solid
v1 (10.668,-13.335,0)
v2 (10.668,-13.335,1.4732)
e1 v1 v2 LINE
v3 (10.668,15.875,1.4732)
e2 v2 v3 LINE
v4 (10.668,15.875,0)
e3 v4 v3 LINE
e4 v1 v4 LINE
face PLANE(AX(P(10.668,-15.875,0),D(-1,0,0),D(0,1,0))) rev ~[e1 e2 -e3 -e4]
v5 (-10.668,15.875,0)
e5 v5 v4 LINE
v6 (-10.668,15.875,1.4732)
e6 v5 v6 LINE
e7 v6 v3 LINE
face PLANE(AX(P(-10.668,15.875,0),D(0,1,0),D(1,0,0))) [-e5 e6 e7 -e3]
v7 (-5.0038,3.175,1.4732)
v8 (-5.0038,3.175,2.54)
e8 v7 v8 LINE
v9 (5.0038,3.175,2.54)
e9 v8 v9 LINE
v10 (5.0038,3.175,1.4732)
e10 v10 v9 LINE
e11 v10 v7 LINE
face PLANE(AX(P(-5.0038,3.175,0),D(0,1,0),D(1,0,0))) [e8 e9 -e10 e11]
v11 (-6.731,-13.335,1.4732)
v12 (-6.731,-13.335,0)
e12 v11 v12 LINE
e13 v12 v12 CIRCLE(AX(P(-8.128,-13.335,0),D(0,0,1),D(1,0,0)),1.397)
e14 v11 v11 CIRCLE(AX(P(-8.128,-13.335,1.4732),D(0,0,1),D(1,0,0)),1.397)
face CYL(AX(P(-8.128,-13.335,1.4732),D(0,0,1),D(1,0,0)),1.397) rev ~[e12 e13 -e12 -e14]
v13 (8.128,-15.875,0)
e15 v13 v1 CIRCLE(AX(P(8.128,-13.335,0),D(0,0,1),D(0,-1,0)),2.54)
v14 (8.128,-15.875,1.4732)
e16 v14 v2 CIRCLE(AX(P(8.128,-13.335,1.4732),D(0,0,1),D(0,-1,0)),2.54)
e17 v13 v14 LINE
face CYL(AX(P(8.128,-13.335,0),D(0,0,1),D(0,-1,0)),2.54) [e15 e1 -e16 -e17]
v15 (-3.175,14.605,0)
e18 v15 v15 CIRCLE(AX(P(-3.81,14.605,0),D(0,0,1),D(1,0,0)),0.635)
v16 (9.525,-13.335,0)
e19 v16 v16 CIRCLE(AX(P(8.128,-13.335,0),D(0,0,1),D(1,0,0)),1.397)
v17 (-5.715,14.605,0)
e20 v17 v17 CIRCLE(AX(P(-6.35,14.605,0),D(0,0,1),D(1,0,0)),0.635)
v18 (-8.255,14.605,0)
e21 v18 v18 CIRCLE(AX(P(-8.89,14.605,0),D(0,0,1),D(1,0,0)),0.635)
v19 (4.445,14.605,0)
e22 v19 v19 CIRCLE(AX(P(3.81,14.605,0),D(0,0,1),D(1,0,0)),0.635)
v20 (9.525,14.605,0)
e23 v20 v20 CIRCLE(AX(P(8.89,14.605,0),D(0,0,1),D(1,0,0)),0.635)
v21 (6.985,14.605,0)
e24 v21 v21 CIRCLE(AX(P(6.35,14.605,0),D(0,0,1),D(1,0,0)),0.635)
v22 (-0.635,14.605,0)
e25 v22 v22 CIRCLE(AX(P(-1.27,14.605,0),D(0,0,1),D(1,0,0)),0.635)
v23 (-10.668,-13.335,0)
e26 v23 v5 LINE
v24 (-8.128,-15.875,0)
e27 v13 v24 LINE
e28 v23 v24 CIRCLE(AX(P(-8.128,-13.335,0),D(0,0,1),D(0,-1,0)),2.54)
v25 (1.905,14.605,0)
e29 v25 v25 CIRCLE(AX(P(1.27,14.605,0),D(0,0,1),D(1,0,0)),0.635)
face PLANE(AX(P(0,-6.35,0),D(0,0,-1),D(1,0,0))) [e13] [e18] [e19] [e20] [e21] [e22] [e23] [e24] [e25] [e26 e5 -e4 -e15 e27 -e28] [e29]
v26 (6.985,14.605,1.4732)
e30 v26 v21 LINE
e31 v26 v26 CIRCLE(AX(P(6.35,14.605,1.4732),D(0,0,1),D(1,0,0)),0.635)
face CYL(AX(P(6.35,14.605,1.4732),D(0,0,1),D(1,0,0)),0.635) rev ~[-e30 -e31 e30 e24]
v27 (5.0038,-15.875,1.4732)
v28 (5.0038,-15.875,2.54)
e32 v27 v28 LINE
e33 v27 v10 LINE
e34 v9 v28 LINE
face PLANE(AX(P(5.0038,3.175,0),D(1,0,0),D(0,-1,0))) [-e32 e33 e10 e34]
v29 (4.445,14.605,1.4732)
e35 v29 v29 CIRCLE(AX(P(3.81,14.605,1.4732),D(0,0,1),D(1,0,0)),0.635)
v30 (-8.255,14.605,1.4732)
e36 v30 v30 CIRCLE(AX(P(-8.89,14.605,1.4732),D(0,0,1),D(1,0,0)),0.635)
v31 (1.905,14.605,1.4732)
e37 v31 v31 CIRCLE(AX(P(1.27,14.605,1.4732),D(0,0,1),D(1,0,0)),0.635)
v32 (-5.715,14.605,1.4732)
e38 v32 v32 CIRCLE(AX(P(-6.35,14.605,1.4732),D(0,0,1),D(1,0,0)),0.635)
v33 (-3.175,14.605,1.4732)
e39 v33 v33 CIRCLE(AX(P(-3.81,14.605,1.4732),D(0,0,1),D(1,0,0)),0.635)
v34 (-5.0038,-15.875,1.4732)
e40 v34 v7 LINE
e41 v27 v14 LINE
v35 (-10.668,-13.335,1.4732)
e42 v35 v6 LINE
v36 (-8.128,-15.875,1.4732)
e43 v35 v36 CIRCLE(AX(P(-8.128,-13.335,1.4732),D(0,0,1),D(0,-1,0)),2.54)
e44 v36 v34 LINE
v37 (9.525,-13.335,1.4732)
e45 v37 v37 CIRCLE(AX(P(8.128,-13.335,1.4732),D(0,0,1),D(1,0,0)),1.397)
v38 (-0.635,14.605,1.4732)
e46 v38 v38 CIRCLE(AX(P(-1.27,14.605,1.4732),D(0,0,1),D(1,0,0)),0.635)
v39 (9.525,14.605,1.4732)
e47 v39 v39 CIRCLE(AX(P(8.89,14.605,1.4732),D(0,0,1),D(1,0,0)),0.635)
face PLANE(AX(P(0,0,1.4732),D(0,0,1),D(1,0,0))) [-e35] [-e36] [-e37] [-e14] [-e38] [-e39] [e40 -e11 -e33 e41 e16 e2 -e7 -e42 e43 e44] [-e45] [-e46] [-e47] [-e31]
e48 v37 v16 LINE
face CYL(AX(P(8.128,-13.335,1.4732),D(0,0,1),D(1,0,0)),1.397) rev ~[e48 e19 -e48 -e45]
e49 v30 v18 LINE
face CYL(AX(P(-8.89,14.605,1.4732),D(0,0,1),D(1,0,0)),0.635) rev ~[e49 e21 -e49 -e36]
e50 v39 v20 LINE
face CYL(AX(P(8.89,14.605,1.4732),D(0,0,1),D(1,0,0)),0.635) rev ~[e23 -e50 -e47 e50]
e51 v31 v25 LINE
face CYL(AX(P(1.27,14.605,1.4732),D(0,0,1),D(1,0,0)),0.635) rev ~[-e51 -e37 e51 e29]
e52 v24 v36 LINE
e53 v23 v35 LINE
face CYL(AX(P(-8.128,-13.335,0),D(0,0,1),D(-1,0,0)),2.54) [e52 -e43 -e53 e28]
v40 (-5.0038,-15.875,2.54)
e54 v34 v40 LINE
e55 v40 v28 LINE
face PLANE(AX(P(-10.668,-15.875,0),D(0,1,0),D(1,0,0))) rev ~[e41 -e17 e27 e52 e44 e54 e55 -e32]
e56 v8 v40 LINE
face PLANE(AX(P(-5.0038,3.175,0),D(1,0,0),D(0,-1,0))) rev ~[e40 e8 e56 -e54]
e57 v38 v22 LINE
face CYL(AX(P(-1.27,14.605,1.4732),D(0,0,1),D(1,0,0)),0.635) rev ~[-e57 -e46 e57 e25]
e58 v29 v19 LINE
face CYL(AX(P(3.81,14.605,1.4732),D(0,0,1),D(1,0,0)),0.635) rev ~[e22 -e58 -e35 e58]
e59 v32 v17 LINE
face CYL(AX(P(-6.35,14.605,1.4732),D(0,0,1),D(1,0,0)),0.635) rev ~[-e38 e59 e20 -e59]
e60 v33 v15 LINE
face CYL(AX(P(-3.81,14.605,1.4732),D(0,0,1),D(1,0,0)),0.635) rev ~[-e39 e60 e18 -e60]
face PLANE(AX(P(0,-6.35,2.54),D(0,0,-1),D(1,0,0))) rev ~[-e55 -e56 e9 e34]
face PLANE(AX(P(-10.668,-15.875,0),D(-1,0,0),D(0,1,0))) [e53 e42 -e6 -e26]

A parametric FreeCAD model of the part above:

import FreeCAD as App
import Part
import Sketcher

V = App.Vector
Q = App.Units.Quantity


def edges_at(feature, points):
    """Names of the edges that pass closest to the given points."""
    edges = feature.Shape.Edges
    near = lambda p: min(range(len(edges)), key=lambda i: edges[i].distToShape(Part.Vertex(*p))[0])
    return sorted({f"Edge{near(p) + 1}" for p in points})


def add_polygon(sketch, points):
    """Adds a closed chain of lines whose ends are joined by coincident constraints."""
    first, n = sketch.GeometryCount, len(points)
    for a, b in zip(points, points[1:] + points[:1]):
        sketch.addGeometry(Part.LineSegment(App.Vector(*a, 0), App.Vector(*b, 0)), False)
    for i in range(n):
        sketch.addConstraint(Sketcher.Constraint("Coincident", first + i, 2, first + (i + 1) % n, 1))

doc = App.newDocument("Part")
body = doc.addObject("PartDesign::Body", "Body")

sketch1 = body.newObject("Sketcher::SketchObject", "Sketch")
sketch1.AttachmentSupport = (doc.getObject("XY_Plane"), [""])
sketch1.MapMode = "FlatFace"
add_polygon(sketch1, [(-11, 16), (-11, -16), (11, -16), (11, 16)])
sketch1.addConstraint(Sketcher.Constraint("Vertical", 0))
sketch1.addConstraint(Sketcher.Constraint("Horizontal", 1))
sketch1.addConstraint(Sketcher.Constraint("Vertical", 2))
sketch1.addConstraint(Sketcher.Constraint("Horizontal", 3))
sketch1.addConstraint(Sketcher.Constraint("Symmetric", 0, 2, 2, 2, -1, 1))
sketch1.addConstraint(Sketcher.Constraint("DistanceX", 1, 1, 1, 2, Q("0.84 in")))
sketch1.addConstraint(Sketcher.Constraint("DistanceY", 0, 2, 0, 1, Q("1.25 in")))
pad1 = body.newObject("PartDesign::Pad", "Pad")
pad1.Profile = sketch1
pad1.Length = Q("0.058 in")
doc.recompute()

fillet = body.newObject("PartDesign::Fillet", "Fillet")
fillet.Base = (pad1, edges_at(pad1, [(10.668, -15.875, 0.737), (-10.668, -15.875, 0.737)]))
fillet.Radius = Q("0.1 in")

sketch2 = body.newObject("Sketcher::SketchObject", "Sketch001")
sketch2.AttachmentSupport = (doc.getObject("XY_Plane"), [""])
sketch2.MapMode = "FlatFace"
sketch2.AttachmentOffset = App.Placement(V(0, 0, 0.058 * 25.4), App.Rotation())
sketch2.addGeometry(Part.Circle(V(8.1, -13.3, 0), V(0, 0, 1), 1.4), False)
sketch2.addGeometry(Part.Circle(V(-8.1, -13.3, 0), V(0, 0, 1), 1.4), False)
sketch2.addConstraint(Sketcher.Constraint("Equal", 0, 1))
sketch2.addConstraint(Sketcher.Constraint("Symmetric", 0, 3, 1, 3, -2))
sketch2.addConstraint(Sketcher.Constraint("Diameter", 0, Q("0.11 in")))
sketch2.addConstraint(Sketcher.Constraint("DistanceX", -1, 1, 0, 3, Q("0.32 in")))
sketch2.addConstraint(Sketcher.Constraint("DistanceY", 0, 3, -1, 1, Q("0.525 in")))
pocket1 = body.newObject("PartDesign::Pocket", "Pocket")
pocket1.Profile = sketch2
pocket1.Type = "ThroughAll"

sketch3 = body.newObject("Sketcher::SketchObject", "Sketch002")
sketch3.AttachmentSupport = (doc.getObject("XY_Plane"), [""])
sketch3.MapMode = "FlatFace"
sketch3.AttachmentOffset = App.Placement(V(0, 0, 0.058 * 25.4), App.Rotation())
sketch3.addGeometry(Part.Circle(V(-8.9, 14.6, 0), V(0, 0, 1), 0.6), False)
sketch3.addGeometry(Part.Circle(V(-6.3, 14.6, 0), V(0, 0, 1), 0.6), False)
sketch3.addGeometry(Part.Circle(V(-3.8, 14.6, 0), V(0, 0, 1), 0.6), False)
sketch3.addGeometry(Part.Circle(V(-1.3, 14.6, 0), V(0, 0, 1), 0.6), False)
sketch3.addGeometry(Part.Circle(V(1.3, 14.6, 0), V(0, 0, 1), 0.6), False)
sketch3.addGeometry(Part.Circle(V(3.8, 14.6, 0), V(0, 0, 1), 0.6), False)
sketch3.addGeometry(Part.Circle(V(6.3, 14.6, 0), V(0, 0, 1), 0.6), False)
sketch3.addGeometry(Part.Circle(V(8.9, 14.6, 0), V(0, 0, 1), 0.6), False)
sketch3.addConstraint(Sketcher.Constraint("Equal", 0, 1))
sketch3.addConstraint(Sketcher.Constraint("Equal", 1, 2))
sketch3.addConstraint(Sketcher.Constraint("Equal", 2, 3))
sketch3.addConstraint(Sketcher.Constraint("Equal", 3, 4))
sketch3.addConstraint(Sketcher.Constraint("Equal", 4, 5))
sketch3.addConstraint(Sketcher.Constraint("Equal", 5, 6))
sketch3.addConstraint(Sketcher.Constraint("Equal", 6, 7))
sketch3.addConstraint(Sketcher.Constraint("Symmetric", 3, 3, 4, 3, -2))
sketch3.addConstraint(Sketcher.Constraint("Symmetric", 2, 3, 5, 3, -2))
sketch3.addConstraint(Sketcher.Constraint("Symmetric", 1, 3, 6, 3, -2))
sketch3.addConstraint(Sketcher.Constraint("Symmetric", 0, 3, 7, 3, -2))
sketch3.addConstraint(Sketcher.Constraint("Horizontal", 0, 3, 1, 3))
sketch3.addConstraint(Sketcher.Constraint("Horizontal", 1, 3, 2, 3))
sketch3.addConstraint(Sketcher.Constraint("Horizontal", 2, 3, 3, 3))
sketch3.addConstraint(Sketcher.Constraint("Diameter", 0, Q("0.05 in")))
sketch3.addConstraint(Sketcher.Constraint("DistanceX", 0, 3, 1, 3, Q("0.1 in")))
sketch3.addConstraint(Sketcher.Constraint("DistanceX", 1, 3, 2, 3, Q("0.1 in")))
sketch3.addConstraint(Sketcher.Constraint("DistanceX", 2, 3, 3, 3, Q("0.1 in")))
sketch3.addConstraint(Sketcher.Constraint("DistanceX", 3, 3, 4, 3, Q("0.1 in")))
sketch3.addConstraint(Sketcher.Constraint("DistanceY", -1, 1, 0, 3, Q("0.575 in")))
pocket2 = body.newObject("PartDesign::Pocket", "Pocket001")
pocket2.Profile = sketch3
pocket2.Type = "ThroughAll"

sketch4 = body.newObject("Sketcher::SketchObject", "Sketch003")
sketch4.AttachmentSupport = (doc.getObject("XY_Plane"), [""])
sketch4.MapMode = "FlatFace"
add_polygon(sketch4, [(-5, -16), (-5, 3), (5, 3), (5, -16)])
sketch4.addConstraint(Sketcher.Constraint("Vertical", 0))
sketch4.addConstraint(Sketcher.Constraint("Horizontal", 1))
sketch4.addConstraint(Sketcher.Constraint("Vertical", 2))
sketch4.addConstraint(Sketcher.Constraint("Horizontal", 3))
sketch4.addConstraint(Sketcher.Constraint("DistanceY", 0, 1, 0, 2, Q("0.75 in")))
sketch4.addConstraint(Sketcher.Constraint("DistanceX", 1, 1, 1, 2, Q("0.394 in")))
sketch4.addConstraint(Sketcher.Constraint("DistanceX", 0, 2, -1, 1, Q("0.197 in")))
sketch4.addConstraint(Sketcher.Constraint("DistanceY", -1, 1, 0, 2, Q("0.125 in")))
pad2 = body.newObject("PartDesign::Pad", "Pad001")
pad2.Profile = sketch4
pad2.Length = Q("0.1 in")

doc.recompute()
